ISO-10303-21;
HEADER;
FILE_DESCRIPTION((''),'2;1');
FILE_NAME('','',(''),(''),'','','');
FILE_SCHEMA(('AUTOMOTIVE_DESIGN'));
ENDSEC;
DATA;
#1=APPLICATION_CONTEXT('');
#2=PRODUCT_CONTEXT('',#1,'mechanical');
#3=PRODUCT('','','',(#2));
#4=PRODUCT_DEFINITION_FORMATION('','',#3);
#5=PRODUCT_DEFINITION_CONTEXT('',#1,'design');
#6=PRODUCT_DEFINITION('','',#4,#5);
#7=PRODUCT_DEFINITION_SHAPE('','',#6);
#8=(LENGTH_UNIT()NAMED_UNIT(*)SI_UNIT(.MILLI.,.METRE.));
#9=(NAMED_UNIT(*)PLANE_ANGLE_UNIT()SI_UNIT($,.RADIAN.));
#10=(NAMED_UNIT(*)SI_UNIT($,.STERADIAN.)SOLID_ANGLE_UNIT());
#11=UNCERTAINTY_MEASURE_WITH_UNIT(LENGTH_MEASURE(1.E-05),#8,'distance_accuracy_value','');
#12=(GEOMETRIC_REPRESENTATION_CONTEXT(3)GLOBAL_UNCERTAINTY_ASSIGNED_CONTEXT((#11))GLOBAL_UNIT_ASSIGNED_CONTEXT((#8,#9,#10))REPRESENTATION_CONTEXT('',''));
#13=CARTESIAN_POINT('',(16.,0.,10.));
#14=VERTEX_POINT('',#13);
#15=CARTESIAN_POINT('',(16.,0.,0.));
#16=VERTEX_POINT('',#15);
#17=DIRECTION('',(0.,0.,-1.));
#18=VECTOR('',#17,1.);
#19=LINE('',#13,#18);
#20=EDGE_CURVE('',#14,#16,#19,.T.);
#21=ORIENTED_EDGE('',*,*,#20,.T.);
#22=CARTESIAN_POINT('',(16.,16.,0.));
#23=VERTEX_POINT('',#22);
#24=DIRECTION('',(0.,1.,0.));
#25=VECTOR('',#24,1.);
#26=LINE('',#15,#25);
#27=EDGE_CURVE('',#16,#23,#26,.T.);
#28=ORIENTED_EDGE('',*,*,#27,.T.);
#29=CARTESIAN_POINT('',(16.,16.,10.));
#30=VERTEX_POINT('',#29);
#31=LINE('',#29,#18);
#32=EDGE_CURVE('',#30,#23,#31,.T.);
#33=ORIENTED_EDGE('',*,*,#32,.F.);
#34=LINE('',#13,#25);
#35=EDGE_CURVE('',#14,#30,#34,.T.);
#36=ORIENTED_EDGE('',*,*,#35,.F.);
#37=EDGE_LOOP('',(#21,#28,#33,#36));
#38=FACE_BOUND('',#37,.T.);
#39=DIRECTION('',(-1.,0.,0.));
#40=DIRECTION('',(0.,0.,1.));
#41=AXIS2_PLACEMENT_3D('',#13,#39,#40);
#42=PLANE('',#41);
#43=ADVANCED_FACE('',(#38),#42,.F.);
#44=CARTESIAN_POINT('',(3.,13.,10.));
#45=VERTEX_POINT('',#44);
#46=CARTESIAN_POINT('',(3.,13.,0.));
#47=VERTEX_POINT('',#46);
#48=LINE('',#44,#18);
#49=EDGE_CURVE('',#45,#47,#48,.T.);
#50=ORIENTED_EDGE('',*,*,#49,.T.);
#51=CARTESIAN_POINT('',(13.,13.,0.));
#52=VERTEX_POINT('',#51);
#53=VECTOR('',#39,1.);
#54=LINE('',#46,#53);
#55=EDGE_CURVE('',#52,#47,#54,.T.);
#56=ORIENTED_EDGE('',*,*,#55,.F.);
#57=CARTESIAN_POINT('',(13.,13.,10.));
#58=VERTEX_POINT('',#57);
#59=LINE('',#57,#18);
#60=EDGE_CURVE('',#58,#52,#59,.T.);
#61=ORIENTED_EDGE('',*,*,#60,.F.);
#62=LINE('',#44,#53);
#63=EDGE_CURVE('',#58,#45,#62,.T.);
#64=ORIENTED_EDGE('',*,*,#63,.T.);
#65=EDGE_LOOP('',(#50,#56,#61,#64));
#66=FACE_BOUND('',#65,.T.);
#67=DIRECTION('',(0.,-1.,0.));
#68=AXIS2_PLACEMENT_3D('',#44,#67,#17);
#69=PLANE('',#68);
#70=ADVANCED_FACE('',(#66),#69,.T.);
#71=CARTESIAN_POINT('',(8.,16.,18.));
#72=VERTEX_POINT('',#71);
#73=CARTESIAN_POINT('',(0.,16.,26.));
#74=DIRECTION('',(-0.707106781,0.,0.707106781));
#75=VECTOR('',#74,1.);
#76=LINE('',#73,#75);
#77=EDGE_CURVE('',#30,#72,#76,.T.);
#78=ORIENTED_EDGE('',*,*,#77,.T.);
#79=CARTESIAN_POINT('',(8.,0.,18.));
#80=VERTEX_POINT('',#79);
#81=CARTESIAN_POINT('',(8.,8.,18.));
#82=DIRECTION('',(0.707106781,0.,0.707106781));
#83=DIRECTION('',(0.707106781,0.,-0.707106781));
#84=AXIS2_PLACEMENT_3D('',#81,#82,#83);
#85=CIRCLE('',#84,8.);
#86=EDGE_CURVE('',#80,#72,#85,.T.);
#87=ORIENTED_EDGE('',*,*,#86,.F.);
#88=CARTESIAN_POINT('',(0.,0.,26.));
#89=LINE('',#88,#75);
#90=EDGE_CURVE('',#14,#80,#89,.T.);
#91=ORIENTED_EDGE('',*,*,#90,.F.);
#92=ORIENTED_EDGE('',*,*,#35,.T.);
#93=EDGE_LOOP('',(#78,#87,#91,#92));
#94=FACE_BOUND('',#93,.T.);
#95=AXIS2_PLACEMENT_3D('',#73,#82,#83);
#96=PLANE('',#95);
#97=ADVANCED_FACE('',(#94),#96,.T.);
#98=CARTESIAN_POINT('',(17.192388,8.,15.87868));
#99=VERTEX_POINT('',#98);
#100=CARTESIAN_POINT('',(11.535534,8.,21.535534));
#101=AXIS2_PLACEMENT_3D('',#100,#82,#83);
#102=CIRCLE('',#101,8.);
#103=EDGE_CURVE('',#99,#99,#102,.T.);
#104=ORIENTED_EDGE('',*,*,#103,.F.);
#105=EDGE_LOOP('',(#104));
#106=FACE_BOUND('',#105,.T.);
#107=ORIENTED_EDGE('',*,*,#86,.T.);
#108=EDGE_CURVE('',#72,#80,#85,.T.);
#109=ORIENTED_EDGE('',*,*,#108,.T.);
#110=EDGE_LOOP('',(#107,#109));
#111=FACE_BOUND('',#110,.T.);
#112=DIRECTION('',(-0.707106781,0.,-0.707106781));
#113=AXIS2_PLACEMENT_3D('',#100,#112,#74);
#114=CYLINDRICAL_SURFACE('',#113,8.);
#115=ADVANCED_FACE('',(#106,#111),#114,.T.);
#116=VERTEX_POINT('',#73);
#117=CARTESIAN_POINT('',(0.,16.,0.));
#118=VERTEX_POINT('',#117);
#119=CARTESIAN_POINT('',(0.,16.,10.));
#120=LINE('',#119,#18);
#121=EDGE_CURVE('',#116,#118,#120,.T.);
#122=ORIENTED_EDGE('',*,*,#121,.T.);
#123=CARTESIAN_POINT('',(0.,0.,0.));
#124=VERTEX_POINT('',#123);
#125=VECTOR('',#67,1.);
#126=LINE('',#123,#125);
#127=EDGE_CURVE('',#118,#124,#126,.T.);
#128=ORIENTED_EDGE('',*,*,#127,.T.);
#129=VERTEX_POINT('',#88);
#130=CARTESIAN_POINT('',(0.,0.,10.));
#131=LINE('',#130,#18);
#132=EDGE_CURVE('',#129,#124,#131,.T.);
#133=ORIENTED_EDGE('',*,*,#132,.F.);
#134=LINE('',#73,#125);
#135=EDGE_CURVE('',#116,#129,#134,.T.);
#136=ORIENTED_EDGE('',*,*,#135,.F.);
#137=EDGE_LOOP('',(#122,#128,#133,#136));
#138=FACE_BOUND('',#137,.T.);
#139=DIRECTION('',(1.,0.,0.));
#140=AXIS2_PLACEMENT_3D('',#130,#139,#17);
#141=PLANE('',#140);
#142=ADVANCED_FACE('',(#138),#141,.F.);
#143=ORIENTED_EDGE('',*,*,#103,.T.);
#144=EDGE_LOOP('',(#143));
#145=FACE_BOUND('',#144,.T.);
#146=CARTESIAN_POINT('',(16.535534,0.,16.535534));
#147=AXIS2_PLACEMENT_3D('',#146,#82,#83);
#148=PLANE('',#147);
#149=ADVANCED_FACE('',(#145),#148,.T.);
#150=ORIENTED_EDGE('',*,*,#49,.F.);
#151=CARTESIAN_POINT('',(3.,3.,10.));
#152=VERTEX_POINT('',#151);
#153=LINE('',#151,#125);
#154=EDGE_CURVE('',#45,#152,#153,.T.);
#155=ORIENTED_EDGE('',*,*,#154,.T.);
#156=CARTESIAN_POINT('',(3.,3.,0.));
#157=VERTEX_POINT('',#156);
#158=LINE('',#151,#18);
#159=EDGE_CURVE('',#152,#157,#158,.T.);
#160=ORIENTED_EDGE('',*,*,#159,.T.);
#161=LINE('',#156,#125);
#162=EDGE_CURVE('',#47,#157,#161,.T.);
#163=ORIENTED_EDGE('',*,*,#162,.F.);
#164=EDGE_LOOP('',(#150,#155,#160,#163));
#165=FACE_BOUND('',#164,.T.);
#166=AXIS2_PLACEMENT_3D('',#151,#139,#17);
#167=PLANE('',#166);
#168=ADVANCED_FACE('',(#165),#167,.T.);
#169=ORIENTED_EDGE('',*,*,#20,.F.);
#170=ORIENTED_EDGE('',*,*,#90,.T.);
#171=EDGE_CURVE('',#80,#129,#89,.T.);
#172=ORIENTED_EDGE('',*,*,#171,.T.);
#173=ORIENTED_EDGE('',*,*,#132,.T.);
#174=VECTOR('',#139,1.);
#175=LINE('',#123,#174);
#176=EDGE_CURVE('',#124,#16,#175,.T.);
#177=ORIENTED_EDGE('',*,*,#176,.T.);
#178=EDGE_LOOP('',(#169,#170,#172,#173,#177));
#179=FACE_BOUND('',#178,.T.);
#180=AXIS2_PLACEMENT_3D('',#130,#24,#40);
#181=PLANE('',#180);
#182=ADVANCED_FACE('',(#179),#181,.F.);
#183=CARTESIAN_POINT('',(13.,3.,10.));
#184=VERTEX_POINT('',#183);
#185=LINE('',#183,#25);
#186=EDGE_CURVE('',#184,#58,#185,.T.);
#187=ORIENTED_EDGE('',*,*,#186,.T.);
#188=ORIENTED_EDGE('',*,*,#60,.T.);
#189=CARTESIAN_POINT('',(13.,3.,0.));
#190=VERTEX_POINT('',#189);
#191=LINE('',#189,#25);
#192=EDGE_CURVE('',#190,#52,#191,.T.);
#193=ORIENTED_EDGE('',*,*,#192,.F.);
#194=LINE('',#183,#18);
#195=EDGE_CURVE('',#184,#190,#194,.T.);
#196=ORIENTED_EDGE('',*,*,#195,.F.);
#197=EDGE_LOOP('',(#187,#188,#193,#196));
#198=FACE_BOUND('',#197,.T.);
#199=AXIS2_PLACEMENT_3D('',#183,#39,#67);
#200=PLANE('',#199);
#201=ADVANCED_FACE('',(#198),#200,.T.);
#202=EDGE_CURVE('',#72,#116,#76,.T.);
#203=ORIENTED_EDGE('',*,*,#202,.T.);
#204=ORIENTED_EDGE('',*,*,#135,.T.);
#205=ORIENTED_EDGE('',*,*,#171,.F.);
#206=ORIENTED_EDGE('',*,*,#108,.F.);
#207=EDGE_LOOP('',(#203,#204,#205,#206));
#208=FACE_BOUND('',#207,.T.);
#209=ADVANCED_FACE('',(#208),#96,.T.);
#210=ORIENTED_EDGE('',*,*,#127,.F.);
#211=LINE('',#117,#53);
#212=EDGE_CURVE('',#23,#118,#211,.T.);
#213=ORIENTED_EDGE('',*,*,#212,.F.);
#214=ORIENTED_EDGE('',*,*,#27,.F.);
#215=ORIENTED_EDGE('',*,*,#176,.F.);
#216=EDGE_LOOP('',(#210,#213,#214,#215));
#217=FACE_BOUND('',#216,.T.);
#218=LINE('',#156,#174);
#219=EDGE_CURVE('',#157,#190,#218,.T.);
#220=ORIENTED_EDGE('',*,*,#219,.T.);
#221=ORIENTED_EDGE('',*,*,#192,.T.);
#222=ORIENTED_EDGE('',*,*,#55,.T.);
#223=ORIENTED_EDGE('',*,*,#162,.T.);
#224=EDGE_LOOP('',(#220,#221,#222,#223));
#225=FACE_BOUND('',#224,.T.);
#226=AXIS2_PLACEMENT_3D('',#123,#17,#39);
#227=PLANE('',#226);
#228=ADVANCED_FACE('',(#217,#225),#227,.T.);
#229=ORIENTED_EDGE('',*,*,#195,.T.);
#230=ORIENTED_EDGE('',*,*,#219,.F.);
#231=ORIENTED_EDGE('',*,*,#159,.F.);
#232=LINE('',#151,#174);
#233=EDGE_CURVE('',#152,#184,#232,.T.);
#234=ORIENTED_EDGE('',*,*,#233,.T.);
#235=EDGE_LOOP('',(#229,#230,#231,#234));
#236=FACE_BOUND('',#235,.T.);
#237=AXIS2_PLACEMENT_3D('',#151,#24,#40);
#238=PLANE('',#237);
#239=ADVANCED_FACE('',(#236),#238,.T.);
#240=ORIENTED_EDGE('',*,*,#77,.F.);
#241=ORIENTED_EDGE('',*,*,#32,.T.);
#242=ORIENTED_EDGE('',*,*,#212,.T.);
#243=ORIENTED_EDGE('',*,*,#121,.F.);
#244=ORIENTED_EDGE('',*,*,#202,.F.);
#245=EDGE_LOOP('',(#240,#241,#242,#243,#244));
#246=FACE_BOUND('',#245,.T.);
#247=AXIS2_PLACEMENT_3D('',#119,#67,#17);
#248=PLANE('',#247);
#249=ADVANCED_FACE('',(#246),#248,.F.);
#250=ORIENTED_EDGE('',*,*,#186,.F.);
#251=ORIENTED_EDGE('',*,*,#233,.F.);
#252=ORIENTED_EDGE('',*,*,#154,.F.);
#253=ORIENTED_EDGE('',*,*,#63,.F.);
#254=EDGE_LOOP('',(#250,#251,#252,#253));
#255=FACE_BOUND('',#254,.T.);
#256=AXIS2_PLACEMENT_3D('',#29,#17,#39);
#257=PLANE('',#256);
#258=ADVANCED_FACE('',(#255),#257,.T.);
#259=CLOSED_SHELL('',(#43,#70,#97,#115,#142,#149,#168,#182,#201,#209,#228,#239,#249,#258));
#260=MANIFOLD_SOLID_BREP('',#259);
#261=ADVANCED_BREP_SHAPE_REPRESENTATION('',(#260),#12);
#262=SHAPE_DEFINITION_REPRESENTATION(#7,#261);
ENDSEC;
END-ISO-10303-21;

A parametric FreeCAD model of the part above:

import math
import FreeCAD as App
import Part
import Sketcher

V = App.Vector


def add_polygon(sketch, points):
    """Adds a closed chain of lines whose ends are joined by coincident constraints."""
    first, n = sketch.GeometryCount, len(points)
    for a, b in zip(points, points[1:] + points[:1]):
        sketch.addGeometry(Part.LineSegment(App.Vector(*a, 0), App.Vector(*b, 0)), False)
    for i in range(n):
        sketch.addConstraint(Sketcher.Constraint("Coincident", first + i, 2, first + (i + 1) % n, 1))

doc = App.newDocument("Part")
params = doc.addObject("Spreadsheet::Sheet", "Params")
for row, (alias, value) in enumerate([
    ("sketch1_width", "16 mm"),
    ("sketch1_width2", "10 mm"),
    ("pad1_length", "10 mm"),
    ("sketch2_width", "16 mm"),
    ("pad2_length", "16 mm"),
    ("sketch3_radius", "8 mm"),
    ("pad3_length", "5 mm"),
], start=1):
    params.set(f"A{row}", alias)
    params.set(f"B{row}", "=" + value)
    params.setAlias(f"B{row}", alias)

body = doc.addObject("PartDesign::Body", "Body")

# Sketch on XY plane
sketch1 = body.newObject("Sketcher::SketchObject", "Sketch")
sketch1.AttachmentSupport = (doc.getObject("XY_Plane"), [""])
sketch1.MapMode = "FlatFace"
add_polygon(sketch1, [(0, 16), (0, 0), (16, 0), (16, 16)])  # lines 0-3
add_polygon(sketch1, [(13, 3), (3, 3), (3, 13), (13, 13)])  # lines 4-7
sketch1.addConstraint(Sketcher.Constraint("Vertical", 0))
sketch1.addConstraint(Sketcher.Constraint("Horizontal", 1))
sketch1.addConstraint(Sketcher.Constraint("Vertical", 2))
sketch1.addConstraint(Sketcher.Constraint("Horizontal", 3))
sketch1.addConstraint(Sketcher.Constraint("Horizontal", 4))
sketch1.addConstraint(Sketcher.Constraint("Vertical", 5))
sketch1.addConstraint(Sketcher.Constraint("Horizontal", 6))
sketch1.addConstraint(Sketcher.Constraint("Vertical", 7))
sketch1.addConstraint(Sketcher.Constraint("Coincident", 0, 2, -1, 1))
sketch1.addConstraint(Sketcher.Constraint("Equal", 3, 0))
sketch1.addConstraint(Sketcher.Constraint("Equal", 6, 5))
sketch1.addConstraint(Sketcher.Constraint("DistanceX", 1, 1, 1, 2, 16.0))
sketch1.addConstraint(Sketcher.Constraint("DistanceX", 4, 2, 4, 1, 10.0))
sketch1.addConstraint(Sketcher.Constraint("DistanceX", -1, 1, 4, 2, 3.0))
sketch1.addConstraint(Sketcher.Constraint("DistanceY", -1, 1, 4, 2, 3.0))
sketch1.setExpression("Constraints[19]", "Params.sketch1_width")
sketch1.setExpression("Constraints[20]", "Params.sketch1_width2")
pad1 = body.newObject("PartDesign::Pad", "Pad")
pad1.Profile = sketch1
pad1.setExpression("Length", "Params.pad1_length")

# Sketch on XZ plane
sketch2 = body.newObject("Sketcher::SketchObject", "Sketch001")
sketch2.AttachmentSupport = (doc.getObject("XZ_Plane"), [""])
sketch2.MapMode = "FlatFace"
add_polygon(sketch2, [(0, 26), (0, 10), (16, 10)])  # lines 0-2
sketch2.addConstraint(Sketcher.Constraint("Vertical", 0))
sketch2.addConstraint(Sketcher.Constraint("Horizontal", 1))
sketch2.addConstraint(Sketcher.Constraint("PointOnObject", 0, 2, -2))
sketch2.addConstraint(Sketcher.Constraint("Equal", 1, 0))
sketch2.addConstraint(Sketcher.Constraint("DistanceX", 1, 1, 1, 2, 16.0))
sketch2.addConstraint(Sketcher.Constraint("DistanceY", -1, 1, 0, 2, 10.0))
sketch2.setExpression("Constraints[7]", "Params.sketch2_width")
pad2 = body.newObject("PartDesign::Pad", "Pad001")
pad2.Profile = sketch2
pad2.setExpression("Length", "Params.pad2_length")
pad2.Reversed = True

# Sketch on an angled plane
sketch3 = body.newObject("Sketcher::SketchObject", "Sketch002")
sketch3.Placement = App.Placement(V(13, 0, 13), App.Rotation(V(0.707106781, 0, -0.707106781), V(0, 0.999999999, 0), V(0.707106781, 0, 0.707106781), "ZXY"))
sketch3.addGeometry(Part.ArcOfCircle(Part.Circle(V(-7, 8, 0), V(0, 0, 1), 8), math.radians(90), math.radians(270)), False)
sketch3.addGeometry(Part.ArcOfCircle(Part.Circle(V(-7, 8, 0), V(0, 0, 1), 8), math.radians(-90), math.radians(0)), False)
sketch3.addGeometry(Part.ArcOfCircle(Part.Circle(V(-7, 8, 0), V(0, 0, 1), 8), math.radians(0), math.radians(90)), False)
sketch3.addConstraint(Sketcher.Constraint("Tangent", 0, 2, 1, 1))
sketch3.addConstraint(Sketcher.Constraint("Tangent", 1, 2, 2, 1))
sketch3.addConstraint(Sketcher.Constraint("Tangent", 2, 2, 0, 1))
sketch3.addConstraint(Sketcher.Constraint("PointOnObject", 0, 2, -1))
sketch3.addConstraint(Sketcher.Constraint("Horizontal", 2, 3, 1, 2))
sketch3.addConstraint(Sketcher.Constraint("Vertical", 2, 3, 0, 2))
sketch3.addConstraint(Sketcher.Constraint("Vertical", 0, 2, 2, 2))
sketch3.addConstraint(Sketcher.Constraint("Radius", 0, 8.0))
sketch3.addConstraint(Sketcher.Constraint("DistanceX", 0, 3, -1, 1, 7.071068))
sketch3.setExpression("Constraints[7]", "Params.sketch3_radius")
pad3 = body.newObject("PartDesign::Pad", "Pad002")
pad3.Profile = sketch3
pad3.setExpression("Length", "Params.pad3_length")

doc.recompute()
